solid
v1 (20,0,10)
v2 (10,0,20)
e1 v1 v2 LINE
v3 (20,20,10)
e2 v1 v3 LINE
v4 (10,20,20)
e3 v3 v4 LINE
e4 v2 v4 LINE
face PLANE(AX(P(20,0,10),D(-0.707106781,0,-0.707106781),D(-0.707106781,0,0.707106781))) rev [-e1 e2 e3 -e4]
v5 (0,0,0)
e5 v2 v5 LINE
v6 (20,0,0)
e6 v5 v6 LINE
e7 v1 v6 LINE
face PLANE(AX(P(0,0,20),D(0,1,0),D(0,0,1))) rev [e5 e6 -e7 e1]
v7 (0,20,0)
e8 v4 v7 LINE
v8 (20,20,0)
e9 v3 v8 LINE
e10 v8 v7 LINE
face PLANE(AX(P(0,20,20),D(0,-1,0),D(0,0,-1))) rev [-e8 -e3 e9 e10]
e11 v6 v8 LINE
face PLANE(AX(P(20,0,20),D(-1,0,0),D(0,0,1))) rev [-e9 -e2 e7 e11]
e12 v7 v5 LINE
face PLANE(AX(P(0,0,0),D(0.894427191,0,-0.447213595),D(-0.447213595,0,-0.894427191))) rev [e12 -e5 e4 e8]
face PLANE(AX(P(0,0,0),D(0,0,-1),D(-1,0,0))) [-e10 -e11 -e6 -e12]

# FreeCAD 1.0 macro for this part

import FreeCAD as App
import Part
import Sketcher

V = App.Vector
Q = App.Units.Quantity


def add_polygon(sketch, points):
    """Adds a closed chain of lines whose ends are joined by coincident constraints."""
    first, n = sketch.GeometryCount, len(points)
    for a, b in zip(points, points[1:] + points[:1]):
        sketch.addGeometry(Part.LineSegment(App.Vector(*a, 0), App.Vector(*b, 0)), False)
    for i in range(n):
        sketch.addConstraint(Sketcher.Constraint("Coincident", first + i, 2, first + (i + 1) % n, 1))

doc = App.newDocument("Part")
body = doc.addObject("PartDesign::Body", "Body")

sketch1 = body.newObject("Sketcher::SketchObject", "Sketch")
sketch1.AttachmentSupport = (doc.getObject("XY_Plane"), [""])
sketch1.MapMode = "FlatFace"
add_polygon(sketch1, [(0, 20), (0, 0), (20, 0), (20, 20)])
sketch1.addConstraint(Sketcher.Constraint("Vertical", 0))
sketch1.addConstraint(Sketcher.Constraint("Horizontal", 1))
sketch1.addConstraint(Sketcher.Constraint("Vertical", 2))
sketch1.addConstraint(Sketcher.Constraint("Horizontal", 3))
sketch1.addConstraint(Sketcher.Constraint("Coincident", 0, 2, -1, 1))
sketch1.addConstraint(Sketcher.Constraint("Equal", 3, 0))
sketch1.addConstraint(Sketcher.Constraint("DistanceX", 1, 1, 1, 2, Q("20 mm")))
pad1 = body.newObject("PartDesign::Pad", "Pad")
pad1.Profile = sketch1
pad1.Length = 20

sketch2 = body.newObject("Sketcher::SketchObject", "Sketch001")
sketch2.AttachmentSupport = (doc.getObject("XZ_Plane"), [""])
sketch2.MapMode = "FlatFace"
sketch2.AttachmentOffset = App.Placement(V(0, 0, -20), App.Rotation())
add_polygon(sketch2, [(10, 20), (0, 0), (0, 20)])
sketch2.addConstraint(Sketcher.Constraint("Vertical", 1))
sketch2.addConstraint(Sketcher.Constraint("Horizontal", 2))
sketch2.addConstraint(Sketcher.Constraint("Coincident", 0, 2, -1, 1))
sketch2.addConstraint(Sketcher.Constraint("DistanceX", 2, 1, 2, 2, Q("10 mm")))
sketch2.addConstraint(Sketcher.Constraint("DistanceY", 1, 1, 1, 2, Q("20 mm")))
pocket1 = body.newObject("PartDesign::Pocket", "Pocket")
pocket1.Profile = sketch2
pocket1.Length = 20
pocket1.Reversed = True

sketch3 = body.newObject("Sketcher::SketchObject", "Sketch002")
sketch3.AttachmentSupport = (doc.getObject("XZ_Plane"), [""])
sketch3.MapMode = "FlatFace"
sketch3.AttachmentOffset = App.Placement(V(0, 0, -20), App.Rotation())
add_polygon(sketch3, [(20, 20), (20, 10), (10, 20)])
sketch3.addConstraint(Sketcher.Constraint("Vertical", 0))
sketch3.addConstraint(Sketcher.Constraint("Horizontal", 2))
sketch3.addConstraint(Sketcher.Constraint("Equal", 2, 0))
sketch3.addConstraint(Sketcher.Constraint("DistanceX", 2, 1, 2, 2, Q("10 mm")))
sketch3.addConstraint(Sketcher.Constraint("DistanceX", -1, 1, 0, 2, Q("20 mm")))
sketch3.addConstraint(Sketcher.Constraint("DistanceY", -1, 1, 0, 2, Q("10 mm")))
pocket2 = body.newObject("PartDesign::Pocket", "Pocket001")
pocket2.Profile = sketch3
pocket2.Length = 20
pocket2.Reversed = True

doc.recompute()
